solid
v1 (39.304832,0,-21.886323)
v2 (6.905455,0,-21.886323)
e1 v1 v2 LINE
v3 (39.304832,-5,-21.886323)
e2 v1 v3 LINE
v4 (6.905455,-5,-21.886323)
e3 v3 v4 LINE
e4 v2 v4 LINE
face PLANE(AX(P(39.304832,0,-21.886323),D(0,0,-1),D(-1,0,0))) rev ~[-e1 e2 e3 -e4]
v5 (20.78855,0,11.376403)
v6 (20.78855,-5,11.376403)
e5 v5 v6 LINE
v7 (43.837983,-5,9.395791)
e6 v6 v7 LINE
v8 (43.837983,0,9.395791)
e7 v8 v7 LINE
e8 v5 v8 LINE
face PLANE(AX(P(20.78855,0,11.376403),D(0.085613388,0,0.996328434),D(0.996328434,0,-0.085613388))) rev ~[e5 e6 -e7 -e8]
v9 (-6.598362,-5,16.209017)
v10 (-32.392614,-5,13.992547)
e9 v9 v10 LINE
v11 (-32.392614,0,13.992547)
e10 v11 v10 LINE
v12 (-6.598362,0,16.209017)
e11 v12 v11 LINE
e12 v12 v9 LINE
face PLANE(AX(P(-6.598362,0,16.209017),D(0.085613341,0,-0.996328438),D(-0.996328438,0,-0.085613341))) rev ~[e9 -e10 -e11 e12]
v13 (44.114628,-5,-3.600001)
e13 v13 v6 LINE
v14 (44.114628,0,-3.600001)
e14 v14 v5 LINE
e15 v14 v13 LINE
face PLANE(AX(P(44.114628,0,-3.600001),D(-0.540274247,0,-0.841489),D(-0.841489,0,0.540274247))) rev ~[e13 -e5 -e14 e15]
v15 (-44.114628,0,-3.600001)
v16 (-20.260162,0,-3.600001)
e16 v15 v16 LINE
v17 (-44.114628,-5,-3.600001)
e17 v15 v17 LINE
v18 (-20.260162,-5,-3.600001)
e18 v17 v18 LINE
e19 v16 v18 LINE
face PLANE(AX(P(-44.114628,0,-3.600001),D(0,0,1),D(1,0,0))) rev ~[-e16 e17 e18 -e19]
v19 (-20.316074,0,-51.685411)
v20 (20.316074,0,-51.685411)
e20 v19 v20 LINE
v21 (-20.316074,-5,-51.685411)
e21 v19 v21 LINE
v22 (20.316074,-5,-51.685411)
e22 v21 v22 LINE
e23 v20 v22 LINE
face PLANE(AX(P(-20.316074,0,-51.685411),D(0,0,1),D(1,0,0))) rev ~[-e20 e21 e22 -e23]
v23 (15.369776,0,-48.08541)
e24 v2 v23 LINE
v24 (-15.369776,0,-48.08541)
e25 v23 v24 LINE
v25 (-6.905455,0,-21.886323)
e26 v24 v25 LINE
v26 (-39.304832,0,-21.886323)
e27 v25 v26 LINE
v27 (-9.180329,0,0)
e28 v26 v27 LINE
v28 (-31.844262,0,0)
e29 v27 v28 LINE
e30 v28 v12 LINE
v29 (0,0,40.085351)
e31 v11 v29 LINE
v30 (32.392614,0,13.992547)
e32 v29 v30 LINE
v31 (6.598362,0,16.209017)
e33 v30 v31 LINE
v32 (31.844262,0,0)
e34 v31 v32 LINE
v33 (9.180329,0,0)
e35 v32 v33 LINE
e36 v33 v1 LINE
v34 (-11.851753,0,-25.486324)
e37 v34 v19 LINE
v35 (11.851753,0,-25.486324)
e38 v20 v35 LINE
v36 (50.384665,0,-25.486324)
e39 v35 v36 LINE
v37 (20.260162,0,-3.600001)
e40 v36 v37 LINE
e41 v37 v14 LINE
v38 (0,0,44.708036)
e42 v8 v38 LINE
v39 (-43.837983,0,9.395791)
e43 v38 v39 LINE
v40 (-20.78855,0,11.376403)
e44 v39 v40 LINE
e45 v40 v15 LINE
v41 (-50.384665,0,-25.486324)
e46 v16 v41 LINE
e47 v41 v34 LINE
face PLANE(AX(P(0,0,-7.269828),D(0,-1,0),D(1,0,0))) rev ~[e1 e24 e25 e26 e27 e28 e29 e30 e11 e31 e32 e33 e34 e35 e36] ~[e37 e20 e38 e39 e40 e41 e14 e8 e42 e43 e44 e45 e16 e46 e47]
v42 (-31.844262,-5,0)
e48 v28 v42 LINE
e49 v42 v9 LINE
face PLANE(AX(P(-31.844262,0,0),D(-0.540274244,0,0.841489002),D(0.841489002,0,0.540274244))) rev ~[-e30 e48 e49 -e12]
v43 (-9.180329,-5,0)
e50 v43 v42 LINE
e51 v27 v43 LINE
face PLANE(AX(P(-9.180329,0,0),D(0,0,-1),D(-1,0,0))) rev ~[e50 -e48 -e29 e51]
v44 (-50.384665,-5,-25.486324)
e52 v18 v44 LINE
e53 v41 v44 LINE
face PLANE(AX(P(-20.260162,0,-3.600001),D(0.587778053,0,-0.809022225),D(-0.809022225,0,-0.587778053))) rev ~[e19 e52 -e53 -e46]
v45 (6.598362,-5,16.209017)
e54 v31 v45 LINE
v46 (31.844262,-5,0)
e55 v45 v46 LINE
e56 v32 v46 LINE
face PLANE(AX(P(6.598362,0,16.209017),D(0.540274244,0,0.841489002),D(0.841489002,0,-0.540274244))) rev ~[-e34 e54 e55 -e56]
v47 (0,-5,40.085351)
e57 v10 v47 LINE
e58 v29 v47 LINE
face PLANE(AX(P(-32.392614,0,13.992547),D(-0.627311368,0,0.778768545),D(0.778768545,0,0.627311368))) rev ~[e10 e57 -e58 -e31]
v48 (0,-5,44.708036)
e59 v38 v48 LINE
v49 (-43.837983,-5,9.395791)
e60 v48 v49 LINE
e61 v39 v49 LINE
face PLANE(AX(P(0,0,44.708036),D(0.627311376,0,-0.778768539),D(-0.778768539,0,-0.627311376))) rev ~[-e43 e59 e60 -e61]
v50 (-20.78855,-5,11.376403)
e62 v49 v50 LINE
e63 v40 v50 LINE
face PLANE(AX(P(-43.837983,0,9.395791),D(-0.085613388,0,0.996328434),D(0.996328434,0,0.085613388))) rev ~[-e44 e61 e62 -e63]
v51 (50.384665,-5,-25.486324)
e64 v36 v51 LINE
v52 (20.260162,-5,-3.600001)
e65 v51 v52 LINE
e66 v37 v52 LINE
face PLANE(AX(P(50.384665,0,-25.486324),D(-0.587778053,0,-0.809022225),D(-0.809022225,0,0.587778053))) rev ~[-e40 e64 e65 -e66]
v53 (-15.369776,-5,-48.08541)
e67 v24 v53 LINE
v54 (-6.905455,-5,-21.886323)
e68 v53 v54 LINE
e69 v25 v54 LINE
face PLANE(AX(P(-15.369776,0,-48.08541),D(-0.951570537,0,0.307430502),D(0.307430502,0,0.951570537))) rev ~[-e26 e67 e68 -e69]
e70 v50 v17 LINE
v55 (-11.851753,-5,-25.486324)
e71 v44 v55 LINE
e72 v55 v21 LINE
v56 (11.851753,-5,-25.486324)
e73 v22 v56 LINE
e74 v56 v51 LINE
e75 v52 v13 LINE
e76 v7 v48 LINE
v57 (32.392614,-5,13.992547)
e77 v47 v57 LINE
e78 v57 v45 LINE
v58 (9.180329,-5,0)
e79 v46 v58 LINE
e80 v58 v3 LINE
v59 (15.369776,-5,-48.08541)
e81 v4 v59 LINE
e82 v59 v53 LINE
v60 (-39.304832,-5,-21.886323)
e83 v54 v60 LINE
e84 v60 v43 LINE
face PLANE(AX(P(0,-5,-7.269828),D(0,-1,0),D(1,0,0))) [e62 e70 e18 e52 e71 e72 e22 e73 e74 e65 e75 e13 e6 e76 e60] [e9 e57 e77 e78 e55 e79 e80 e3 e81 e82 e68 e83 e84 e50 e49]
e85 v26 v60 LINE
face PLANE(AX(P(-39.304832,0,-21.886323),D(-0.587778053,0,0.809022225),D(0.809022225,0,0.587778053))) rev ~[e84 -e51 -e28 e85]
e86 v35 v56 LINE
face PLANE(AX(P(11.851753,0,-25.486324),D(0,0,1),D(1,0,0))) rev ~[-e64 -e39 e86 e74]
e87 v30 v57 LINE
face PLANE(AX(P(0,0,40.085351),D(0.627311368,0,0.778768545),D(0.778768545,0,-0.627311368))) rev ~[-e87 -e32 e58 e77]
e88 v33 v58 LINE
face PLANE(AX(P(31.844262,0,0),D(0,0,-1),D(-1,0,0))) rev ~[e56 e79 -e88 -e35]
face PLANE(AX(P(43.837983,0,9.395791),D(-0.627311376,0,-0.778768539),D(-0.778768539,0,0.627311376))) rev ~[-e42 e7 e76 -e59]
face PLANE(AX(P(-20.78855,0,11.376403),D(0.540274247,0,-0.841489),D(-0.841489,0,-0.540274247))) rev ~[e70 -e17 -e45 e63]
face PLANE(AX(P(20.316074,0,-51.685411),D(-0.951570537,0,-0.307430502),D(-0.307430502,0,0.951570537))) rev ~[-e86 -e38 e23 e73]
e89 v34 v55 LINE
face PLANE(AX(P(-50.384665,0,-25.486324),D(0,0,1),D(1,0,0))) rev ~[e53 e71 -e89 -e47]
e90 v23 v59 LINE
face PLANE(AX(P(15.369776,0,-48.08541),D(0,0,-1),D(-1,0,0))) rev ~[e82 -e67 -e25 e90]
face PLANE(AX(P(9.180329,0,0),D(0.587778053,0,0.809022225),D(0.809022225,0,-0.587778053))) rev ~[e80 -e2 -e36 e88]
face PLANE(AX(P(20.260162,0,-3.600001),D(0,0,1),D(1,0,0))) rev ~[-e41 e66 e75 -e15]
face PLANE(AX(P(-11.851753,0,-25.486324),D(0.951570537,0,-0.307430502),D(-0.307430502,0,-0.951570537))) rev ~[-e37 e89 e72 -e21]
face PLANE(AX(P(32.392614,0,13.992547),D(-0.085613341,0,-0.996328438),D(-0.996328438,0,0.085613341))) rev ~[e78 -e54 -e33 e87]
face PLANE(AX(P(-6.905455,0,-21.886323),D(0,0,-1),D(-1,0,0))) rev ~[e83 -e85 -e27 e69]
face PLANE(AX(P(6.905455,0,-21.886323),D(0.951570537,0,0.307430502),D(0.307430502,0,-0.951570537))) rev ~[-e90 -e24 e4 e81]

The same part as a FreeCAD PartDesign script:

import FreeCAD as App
import Part
import Sketcher

V = App.Vector


def add_polygon(sketch, points):
    """Adds a closed chain of lines whose ends are joined by coincident constraints."""
    first, n = sketch.GeometryCount, len(points)
    for a, b in zip(points, points[1:] + points[:1]):
        sketch.addGeometry(Part.LineSegment(App.Vector(*a, 0), App.Vector(*b, 0)), False)
    for i in range(n):
        sketch.addConstraint(Sketcher.Constraint("Coincident", first + i, 2, first + (i + 1) % n, 1))

doc = App.newDocument("Part")
body = doc.addObject("PartDesign::Body", "Body")

sketch1 = body.newObject("Sketcher::SketchObject", "Sketch")
sketch1.AttachmentSupport = (doc.getObject("XZ_Plane"), [""])
sketch1.MapMode = "FlatFace"
add_polygon(sketch1, [(0, 45), (-44, 9), (-21, 11), (-44, -4), (-20, -4), (-50, -25), (-12, -25), (-20, -52), (20, -52), (12, -25), (50, -25), (20, -4), (44, -4), (21, 11), (44, 9)])
add_polygon(sketch1, [(7, -22), (15, -48), (-15, -48), (-7, -22), (-39, -22), (-9, 0), (-32, 0), (-7, 16), (-32, 14), (0, 40), (32, 14), (7, 16), (32, 0), (9, 0), (39, -22)])
sketch1.addConstraint(Sketcher.Constraint("Horizontal", 3))
sketch1.addConstraint(Sketcher.Constraint("Horizontal", 5))
sketch1.addConstraint(Sketcher.Constraint("Horizontal", 7))
sketch1.addConstraint(Sketcher.Constraint("Horizontal", 9))
sketch1.addConstraint(Sketcher.Constraint("Horizontal", 11))
sketch1.addConstraint(Sketcher.Constraint("Horizontal", 16))
sketch1.addConstraint(Sketcher.Constraint("Horizontal", 18))
sketch1.addConstraint(Sketcher.Constraint("Horizontal", 20))
sketch1.addConstraint(Sketcher.Constraint("Horizontal", 27))
sketch1.addConstraint(Sketcher.Constraint("Horizontal", 29))
sketch1.addConstraint(Sketcher.Constraint("Symmetric", 20, 2, 26, 2, -1, 1))
sketch1.addConstraint(Sketcher.Constraint("Symmetric", 5, 2, 8, 2, -2))
sketch1.addConstraint(Sketcher.Constraint("Symmetric", 3, 2, 10, 2, -2))
sketch1.addConstraint(Sketcher.Constraint("Symmetric", 1, 2, 12, 2, -2))
sketch1.addConstraint(Sketcher.Constraint("Symmetric", 0, 2, 13, 2, -2))
sketch1.addConstraint(Sketcher.Constraint("Symmetric", 22, 2, 24, 2, -2))
sketch1.addConstraint(Sketcher.Constraint("Symmetric", 21, 2, 25, 2, -2))
sketch1.addConstraint(Sketcher.Constraint("Symmetric", 19, 2, 27, 2, -2))
sketch1.addConstraint(Sketcher.Constraint("Symmetric", 18, 2, 28, 2, -2))
sketch1.addConstraint(Sketcher.Constraint("PointOnObject", 14, 2, -2))
sketch1.addConstraint(Sketcher.Constraint("PointOnObject", 23, 2, -2))
sketch1.addConstraint(Sketcher.Constraint("Parallel", 8, 15))
sketch1.addConstraint(Sketcher.Constraint("Parallel", 6, 17))
sketch1.addConstraint(Sketcher.Constraint("Parallel", 4, 19))
sketch1.addConstraint(Sketcher.Constraint("Parallel", 2, 21))
sketch1.addConstraint(Sketcher.Constraint("Parallel", 1, 22))
sketch1.addConstraint(Sketcher.Constraint("Parallel", 0, 23))
sketch1.addConstraint(Sketcher.Constraint("Parallel", 12, 26))
sketch1.addConstraint(Sketcher.Constraint("Parallel", 10, 28))
sketch1.addConstraint(Sketcher.Constraint("Equal", 18, 29))
sketch1.addConstraint(Sketcher.Constraint("Equal", 6, 8))
sketch1.addConstraint(Sketcher.Constraint("Equal", 8, 15))
sketch1.addConstraint(Sketcher.Constraint("Equal", 10, 19))
sketch1.addConstraint(Sketcher.Constraint("DistanceY", 2, 2, -1, 1, 3.600001))
sketch1.addConstraint(Sketcher.Constraint("DistanceX", 5, 1, 5, 2, 38.532912))
sketch1.addConstraint(Sketcher.Constraint("DistanceX", 16, 2, 16, 1, 30.739552))
sketch1.addConstraint(Sketcher.Constraint("DistanceX", 1, 2, 12, 2, 41.5771))
sketch1.addConstraint(Sketcher.Constraint("DistanceX", 15, 2, 7, 2, 4.946298))
sketch1.addConstraint(Sketcher.Constraint("DistanceX", 20, 2, 3, 2, 11.5841))
sketch1.addConstraint(Sketcher.Constraint("DistanceX", 3, 2, 21, 2, 13.6618))
sketch1.addConstraint(Sketcher.Constraint("Distance", 6, 27.53247))
sketch1.addConstraint(Sketcher.Constraint("Distance", 21, 30.001462))
sketch1.addConstraint(Sketcher.Constraint("Distance", 23, 41.594661))
sketch1.addConstraint(Sketcher.Constraint("DistanceX", 3, 1, 3, 2, 23.854466))
sketch1.addConstraint(Sketcher.Constraint("DistanceX", 18, 2, 18, 1, 32.399377))
sketch1.addConstraint(Sketcher.Constraint("DistanceY", -1, 1, 0, 2, 9.395791))
sketch1.addConstraint(Sketcher.Constraint("DistanceX", 2, 2, -1, 1, 44.114628))
sketch1.addConstraint(Sketcher.Constraint("DistanceY", 6, 2, -1, 1, 51.685411))
sketch1.addConstraint(Sketcher.Constraint("DistanceX", 18, 2, -1, 1, 39.304832))
sketch1.addConstraint(Sketcher.Constraint("DistanceY", -1, 1, 23, 2, 40.085351))
sketch1.addConstraint(Sketcher.Constraint("DistanceX", 0, 2, 3, 2, 23.577821))
pad1 = body.newObject("PartDesign::Pad", "Pad")
pad1.Profile = sketch1
pad1.Length = 5

doc.recompute()
